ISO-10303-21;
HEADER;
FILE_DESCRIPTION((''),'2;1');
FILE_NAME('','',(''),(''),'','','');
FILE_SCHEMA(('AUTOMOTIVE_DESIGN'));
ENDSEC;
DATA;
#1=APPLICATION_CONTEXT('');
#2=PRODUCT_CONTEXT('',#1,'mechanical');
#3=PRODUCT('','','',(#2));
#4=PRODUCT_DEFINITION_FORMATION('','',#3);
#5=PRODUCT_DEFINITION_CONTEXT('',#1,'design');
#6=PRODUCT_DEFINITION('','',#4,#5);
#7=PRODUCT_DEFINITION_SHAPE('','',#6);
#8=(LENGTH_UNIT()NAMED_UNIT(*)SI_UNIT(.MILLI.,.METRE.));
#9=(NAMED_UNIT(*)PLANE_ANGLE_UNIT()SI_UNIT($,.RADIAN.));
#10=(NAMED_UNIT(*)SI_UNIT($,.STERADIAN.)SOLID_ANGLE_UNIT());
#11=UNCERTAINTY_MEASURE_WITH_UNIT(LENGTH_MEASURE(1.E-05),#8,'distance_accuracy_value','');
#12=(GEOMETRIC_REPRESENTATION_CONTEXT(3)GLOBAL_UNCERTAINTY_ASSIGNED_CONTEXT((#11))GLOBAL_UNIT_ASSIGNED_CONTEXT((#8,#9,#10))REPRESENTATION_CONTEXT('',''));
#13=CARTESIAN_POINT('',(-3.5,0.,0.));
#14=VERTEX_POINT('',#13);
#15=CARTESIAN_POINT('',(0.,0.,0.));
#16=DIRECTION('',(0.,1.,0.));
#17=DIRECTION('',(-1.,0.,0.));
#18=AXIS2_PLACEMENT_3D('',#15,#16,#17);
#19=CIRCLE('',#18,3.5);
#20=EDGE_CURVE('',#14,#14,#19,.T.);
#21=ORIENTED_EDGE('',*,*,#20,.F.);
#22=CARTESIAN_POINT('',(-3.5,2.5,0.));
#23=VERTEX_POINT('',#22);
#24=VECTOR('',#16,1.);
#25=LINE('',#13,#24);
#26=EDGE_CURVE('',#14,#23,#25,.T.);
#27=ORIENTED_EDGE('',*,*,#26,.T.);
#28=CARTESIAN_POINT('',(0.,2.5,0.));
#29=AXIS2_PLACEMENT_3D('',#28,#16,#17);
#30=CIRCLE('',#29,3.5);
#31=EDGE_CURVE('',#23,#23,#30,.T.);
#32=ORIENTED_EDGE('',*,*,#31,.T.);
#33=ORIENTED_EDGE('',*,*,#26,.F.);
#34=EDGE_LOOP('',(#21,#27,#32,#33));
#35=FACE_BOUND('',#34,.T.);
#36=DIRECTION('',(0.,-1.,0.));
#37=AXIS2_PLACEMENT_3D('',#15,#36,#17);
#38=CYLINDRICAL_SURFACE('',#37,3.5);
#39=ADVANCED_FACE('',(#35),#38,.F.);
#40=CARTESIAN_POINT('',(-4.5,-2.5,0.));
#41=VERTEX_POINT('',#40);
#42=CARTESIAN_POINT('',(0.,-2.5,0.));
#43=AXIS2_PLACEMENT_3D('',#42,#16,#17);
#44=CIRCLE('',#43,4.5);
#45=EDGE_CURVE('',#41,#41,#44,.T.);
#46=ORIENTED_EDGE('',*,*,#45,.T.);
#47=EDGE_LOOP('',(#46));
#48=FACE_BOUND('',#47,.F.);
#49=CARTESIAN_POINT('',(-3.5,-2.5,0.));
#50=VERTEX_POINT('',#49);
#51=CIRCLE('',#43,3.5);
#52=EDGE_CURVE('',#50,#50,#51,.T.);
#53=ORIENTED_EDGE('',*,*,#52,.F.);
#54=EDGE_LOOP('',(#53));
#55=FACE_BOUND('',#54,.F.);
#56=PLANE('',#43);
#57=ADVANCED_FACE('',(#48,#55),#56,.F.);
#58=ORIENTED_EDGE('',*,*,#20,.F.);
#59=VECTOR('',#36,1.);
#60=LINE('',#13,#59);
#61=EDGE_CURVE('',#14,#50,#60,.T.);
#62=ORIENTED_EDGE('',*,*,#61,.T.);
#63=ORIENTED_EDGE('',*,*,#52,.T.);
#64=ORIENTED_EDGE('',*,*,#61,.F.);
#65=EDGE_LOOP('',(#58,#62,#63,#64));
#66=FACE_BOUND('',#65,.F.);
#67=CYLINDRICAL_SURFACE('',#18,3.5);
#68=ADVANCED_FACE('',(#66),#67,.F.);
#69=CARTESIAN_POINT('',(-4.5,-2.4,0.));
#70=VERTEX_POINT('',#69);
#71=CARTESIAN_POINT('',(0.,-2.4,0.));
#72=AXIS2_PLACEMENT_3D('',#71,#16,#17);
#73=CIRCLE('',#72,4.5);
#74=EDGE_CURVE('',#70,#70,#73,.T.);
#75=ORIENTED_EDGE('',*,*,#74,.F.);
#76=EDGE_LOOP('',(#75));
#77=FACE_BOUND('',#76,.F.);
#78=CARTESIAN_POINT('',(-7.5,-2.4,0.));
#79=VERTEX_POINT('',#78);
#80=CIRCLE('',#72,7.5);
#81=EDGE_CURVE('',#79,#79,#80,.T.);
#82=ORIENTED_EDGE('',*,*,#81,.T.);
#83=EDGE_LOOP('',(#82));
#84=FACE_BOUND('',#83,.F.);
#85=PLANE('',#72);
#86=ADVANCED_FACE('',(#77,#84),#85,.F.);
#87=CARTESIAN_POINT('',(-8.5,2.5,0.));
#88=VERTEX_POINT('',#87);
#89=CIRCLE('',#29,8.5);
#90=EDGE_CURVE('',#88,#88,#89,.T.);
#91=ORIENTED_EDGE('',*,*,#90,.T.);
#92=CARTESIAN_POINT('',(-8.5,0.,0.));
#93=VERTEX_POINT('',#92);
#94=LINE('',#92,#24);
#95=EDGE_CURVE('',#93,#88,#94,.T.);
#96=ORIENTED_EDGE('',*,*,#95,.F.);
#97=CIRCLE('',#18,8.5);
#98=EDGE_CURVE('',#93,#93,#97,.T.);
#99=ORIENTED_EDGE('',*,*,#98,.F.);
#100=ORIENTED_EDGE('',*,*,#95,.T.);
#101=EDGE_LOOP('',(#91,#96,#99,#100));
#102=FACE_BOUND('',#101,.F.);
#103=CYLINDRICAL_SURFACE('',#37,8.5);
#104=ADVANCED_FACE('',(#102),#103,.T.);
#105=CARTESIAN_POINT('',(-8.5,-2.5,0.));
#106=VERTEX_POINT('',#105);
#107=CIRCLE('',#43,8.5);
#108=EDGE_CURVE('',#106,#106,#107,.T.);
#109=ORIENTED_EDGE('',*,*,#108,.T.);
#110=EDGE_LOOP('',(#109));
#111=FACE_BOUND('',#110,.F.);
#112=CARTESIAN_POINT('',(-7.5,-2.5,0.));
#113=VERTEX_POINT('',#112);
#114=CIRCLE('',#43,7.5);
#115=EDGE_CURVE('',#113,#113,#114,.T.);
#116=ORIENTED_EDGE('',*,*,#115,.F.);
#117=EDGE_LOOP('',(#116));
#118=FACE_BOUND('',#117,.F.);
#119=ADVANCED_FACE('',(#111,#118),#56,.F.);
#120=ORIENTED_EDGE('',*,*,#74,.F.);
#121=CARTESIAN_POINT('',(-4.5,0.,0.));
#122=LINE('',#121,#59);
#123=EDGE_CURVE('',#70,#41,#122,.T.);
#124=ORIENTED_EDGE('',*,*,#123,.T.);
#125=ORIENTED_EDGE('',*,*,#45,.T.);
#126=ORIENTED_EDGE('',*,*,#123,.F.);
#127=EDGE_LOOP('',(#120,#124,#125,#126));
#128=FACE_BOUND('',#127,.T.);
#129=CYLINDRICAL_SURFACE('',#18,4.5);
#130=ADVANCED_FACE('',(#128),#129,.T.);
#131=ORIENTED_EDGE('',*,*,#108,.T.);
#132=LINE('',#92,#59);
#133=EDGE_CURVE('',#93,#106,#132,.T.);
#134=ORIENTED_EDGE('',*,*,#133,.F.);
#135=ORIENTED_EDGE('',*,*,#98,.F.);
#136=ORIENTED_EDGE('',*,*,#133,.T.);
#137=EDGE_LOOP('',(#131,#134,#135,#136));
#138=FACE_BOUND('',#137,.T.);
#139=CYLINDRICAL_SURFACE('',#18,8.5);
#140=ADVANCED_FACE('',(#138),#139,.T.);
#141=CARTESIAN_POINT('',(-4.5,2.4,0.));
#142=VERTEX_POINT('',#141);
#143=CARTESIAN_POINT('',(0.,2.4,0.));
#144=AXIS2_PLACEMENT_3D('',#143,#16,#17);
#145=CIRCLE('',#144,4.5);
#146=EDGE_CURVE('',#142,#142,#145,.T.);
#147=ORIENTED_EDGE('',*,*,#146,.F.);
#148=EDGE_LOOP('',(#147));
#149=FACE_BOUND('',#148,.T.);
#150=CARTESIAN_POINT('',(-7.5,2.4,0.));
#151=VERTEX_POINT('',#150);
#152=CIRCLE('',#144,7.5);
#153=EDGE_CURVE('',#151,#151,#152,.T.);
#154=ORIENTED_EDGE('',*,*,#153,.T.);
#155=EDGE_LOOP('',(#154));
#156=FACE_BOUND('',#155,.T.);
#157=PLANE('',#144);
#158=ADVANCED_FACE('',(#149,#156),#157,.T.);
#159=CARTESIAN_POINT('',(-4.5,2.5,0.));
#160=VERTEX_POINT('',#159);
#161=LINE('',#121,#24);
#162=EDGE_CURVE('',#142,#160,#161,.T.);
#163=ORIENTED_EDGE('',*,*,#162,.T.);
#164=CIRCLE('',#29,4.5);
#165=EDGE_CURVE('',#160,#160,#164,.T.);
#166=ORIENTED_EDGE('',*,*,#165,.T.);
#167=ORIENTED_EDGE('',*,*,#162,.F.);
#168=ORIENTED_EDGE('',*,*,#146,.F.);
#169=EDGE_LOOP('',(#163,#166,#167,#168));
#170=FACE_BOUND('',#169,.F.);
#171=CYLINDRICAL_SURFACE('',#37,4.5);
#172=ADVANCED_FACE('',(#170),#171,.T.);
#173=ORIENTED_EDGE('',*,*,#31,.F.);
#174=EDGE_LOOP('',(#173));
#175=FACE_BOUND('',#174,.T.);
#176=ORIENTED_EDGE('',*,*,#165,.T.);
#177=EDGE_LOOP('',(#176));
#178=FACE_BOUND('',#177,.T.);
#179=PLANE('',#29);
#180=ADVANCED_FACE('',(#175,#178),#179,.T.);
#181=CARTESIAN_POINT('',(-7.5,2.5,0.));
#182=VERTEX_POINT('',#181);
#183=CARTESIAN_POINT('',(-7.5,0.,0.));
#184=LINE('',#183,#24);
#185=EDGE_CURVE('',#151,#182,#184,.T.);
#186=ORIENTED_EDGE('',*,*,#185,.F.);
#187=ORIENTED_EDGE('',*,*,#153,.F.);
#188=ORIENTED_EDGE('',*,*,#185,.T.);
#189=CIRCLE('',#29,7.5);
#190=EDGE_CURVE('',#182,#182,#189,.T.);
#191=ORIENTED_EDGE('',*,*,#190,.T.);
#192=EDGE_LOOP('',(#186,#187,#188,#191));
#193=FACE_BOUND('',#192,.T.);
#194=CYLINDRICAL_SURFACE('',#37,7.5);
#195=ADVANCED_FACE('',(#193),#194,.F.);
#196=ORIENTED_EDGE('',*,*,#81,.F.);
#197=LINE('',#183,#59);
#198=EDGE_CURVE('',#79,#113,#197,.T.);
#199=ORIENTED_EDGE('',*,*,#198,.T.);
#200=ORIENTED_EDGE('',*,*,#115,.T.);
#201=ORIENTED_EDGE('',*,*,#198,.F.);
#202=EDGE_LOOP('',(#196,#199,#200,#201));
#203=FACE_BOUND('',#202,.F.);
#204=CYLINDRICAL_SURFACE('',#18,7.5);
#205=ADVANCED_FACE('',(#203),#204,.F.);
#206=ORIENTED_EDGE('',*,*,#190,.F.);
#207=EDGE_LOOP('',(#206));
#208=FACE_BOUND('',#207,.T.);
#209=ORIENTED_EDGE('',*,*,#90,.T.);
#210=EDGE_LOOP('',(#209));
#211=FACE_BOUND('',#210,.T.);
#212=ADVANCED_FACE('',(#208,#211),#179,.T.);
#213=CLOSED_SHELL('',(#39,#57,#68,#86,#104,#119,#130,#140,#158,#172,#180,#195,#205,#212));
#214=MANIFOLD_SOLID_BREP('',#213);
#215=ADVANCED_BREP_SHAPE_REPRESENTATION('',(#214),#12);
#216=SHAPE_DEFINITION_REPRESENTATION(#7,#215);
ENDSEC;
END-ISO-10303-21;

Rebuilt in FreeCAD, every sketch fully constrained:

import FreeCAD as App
import Part
import Sketcher

V = App.Vector
Q = App.Units.Quantity

doc = App.newDocument("Part")
body = doc.addObject("PartDesign::Body", "Body")
body.AllowCompound = True

sketch1 = body.newObject("Sketcher::SketchObject", "Sketch")
sketch1.AttachmentSupport = (doc.getObject("XZ_Plane"), [""])
sketch1.MapMode = "FlatFace"
sketch1.addGeometry(Part.Circle(V(0, 0, 0), V(0, 0, 1), 8.5), False)
sketch1.addGeometry(Part.Circle(V(0, 0, 0), V(0, 0, 1), 7.5), False)
sketch1.addGeometry(Part.Circle(V(0, 0, 0), V(0, 0, 1), 4.5), False)
sketch1.addGeometry(Part.Circle(V(0, 0, 0), V(0, 0, 1), 3.5), False)
sketch1.addConstraint(Sketcher.Constraint("Coincident", 0, 3, -1, 1))
sketch1.addConstraint(Sketcher.Constraint("Coincident", 1, 3, -1, 1))
sketch1.addConstraint(Sketcher.Constraint("Coincident", 2, 3, -1, 1))
sketch1.addConstraint(Sketcher.Constraint("Coincident", 3, 3, -1, 1))
sketch1.addConstraint(Sketcher.Constraint("Diameter", 0, Q("17 mm")))
sketch1.addConstraint(Sketcher.Constraint("Diameter", 3, Q("7 mm")))
sketch1.addConstraint(Sketcher.Constraint("Diameter", 1, Q("15 mm")))
sketch1.addConstraint(Sketcher.Constraint("Diameter", 2, Q("9 mm")))
pad1 = body.newObject("PartDesign::Pad", "Pad")
pad1.Profile = sketch1
pad1.Length = 5
pad1.Midplane = True

sketch2 = body.newObject("Sketcher::SketchObject", "Sketch001")
sketch2.AttachmentSupport = (doc.getObject("XZ_Plane"), [""])
sketch2.MapMode = "FlatFace"
sketch2.addGeometry(Part.Circle(V(0, 0, 0), V(0, 0, 1), 7.5), False)
sketch2.addGeometry(Part.Circle(V(0, 0, 0), V(0, 0, 1), 4.5), False)
sketch2.addConstraint(Sketcher.Constraint("Coincident", 0, 3, -1, 1))
sketch2.addConstraint(Sketcher.Constraint("Coincident", 1, 3, -1, 1))
sketch2.addConstraint(Sketcher.Constraint("Diameter", 0, Q("15 mm")))
sketch2.addConstraint(Sketcher.Constraint("Diameter", 1, Q("9 mm")))
pad2 = body.newObject("PartDesign::Pad", "Pad001")
pad2.Profile = sketch2
pad2.Length = 4.8
pad2.Midplane = True

doc.recompute()
